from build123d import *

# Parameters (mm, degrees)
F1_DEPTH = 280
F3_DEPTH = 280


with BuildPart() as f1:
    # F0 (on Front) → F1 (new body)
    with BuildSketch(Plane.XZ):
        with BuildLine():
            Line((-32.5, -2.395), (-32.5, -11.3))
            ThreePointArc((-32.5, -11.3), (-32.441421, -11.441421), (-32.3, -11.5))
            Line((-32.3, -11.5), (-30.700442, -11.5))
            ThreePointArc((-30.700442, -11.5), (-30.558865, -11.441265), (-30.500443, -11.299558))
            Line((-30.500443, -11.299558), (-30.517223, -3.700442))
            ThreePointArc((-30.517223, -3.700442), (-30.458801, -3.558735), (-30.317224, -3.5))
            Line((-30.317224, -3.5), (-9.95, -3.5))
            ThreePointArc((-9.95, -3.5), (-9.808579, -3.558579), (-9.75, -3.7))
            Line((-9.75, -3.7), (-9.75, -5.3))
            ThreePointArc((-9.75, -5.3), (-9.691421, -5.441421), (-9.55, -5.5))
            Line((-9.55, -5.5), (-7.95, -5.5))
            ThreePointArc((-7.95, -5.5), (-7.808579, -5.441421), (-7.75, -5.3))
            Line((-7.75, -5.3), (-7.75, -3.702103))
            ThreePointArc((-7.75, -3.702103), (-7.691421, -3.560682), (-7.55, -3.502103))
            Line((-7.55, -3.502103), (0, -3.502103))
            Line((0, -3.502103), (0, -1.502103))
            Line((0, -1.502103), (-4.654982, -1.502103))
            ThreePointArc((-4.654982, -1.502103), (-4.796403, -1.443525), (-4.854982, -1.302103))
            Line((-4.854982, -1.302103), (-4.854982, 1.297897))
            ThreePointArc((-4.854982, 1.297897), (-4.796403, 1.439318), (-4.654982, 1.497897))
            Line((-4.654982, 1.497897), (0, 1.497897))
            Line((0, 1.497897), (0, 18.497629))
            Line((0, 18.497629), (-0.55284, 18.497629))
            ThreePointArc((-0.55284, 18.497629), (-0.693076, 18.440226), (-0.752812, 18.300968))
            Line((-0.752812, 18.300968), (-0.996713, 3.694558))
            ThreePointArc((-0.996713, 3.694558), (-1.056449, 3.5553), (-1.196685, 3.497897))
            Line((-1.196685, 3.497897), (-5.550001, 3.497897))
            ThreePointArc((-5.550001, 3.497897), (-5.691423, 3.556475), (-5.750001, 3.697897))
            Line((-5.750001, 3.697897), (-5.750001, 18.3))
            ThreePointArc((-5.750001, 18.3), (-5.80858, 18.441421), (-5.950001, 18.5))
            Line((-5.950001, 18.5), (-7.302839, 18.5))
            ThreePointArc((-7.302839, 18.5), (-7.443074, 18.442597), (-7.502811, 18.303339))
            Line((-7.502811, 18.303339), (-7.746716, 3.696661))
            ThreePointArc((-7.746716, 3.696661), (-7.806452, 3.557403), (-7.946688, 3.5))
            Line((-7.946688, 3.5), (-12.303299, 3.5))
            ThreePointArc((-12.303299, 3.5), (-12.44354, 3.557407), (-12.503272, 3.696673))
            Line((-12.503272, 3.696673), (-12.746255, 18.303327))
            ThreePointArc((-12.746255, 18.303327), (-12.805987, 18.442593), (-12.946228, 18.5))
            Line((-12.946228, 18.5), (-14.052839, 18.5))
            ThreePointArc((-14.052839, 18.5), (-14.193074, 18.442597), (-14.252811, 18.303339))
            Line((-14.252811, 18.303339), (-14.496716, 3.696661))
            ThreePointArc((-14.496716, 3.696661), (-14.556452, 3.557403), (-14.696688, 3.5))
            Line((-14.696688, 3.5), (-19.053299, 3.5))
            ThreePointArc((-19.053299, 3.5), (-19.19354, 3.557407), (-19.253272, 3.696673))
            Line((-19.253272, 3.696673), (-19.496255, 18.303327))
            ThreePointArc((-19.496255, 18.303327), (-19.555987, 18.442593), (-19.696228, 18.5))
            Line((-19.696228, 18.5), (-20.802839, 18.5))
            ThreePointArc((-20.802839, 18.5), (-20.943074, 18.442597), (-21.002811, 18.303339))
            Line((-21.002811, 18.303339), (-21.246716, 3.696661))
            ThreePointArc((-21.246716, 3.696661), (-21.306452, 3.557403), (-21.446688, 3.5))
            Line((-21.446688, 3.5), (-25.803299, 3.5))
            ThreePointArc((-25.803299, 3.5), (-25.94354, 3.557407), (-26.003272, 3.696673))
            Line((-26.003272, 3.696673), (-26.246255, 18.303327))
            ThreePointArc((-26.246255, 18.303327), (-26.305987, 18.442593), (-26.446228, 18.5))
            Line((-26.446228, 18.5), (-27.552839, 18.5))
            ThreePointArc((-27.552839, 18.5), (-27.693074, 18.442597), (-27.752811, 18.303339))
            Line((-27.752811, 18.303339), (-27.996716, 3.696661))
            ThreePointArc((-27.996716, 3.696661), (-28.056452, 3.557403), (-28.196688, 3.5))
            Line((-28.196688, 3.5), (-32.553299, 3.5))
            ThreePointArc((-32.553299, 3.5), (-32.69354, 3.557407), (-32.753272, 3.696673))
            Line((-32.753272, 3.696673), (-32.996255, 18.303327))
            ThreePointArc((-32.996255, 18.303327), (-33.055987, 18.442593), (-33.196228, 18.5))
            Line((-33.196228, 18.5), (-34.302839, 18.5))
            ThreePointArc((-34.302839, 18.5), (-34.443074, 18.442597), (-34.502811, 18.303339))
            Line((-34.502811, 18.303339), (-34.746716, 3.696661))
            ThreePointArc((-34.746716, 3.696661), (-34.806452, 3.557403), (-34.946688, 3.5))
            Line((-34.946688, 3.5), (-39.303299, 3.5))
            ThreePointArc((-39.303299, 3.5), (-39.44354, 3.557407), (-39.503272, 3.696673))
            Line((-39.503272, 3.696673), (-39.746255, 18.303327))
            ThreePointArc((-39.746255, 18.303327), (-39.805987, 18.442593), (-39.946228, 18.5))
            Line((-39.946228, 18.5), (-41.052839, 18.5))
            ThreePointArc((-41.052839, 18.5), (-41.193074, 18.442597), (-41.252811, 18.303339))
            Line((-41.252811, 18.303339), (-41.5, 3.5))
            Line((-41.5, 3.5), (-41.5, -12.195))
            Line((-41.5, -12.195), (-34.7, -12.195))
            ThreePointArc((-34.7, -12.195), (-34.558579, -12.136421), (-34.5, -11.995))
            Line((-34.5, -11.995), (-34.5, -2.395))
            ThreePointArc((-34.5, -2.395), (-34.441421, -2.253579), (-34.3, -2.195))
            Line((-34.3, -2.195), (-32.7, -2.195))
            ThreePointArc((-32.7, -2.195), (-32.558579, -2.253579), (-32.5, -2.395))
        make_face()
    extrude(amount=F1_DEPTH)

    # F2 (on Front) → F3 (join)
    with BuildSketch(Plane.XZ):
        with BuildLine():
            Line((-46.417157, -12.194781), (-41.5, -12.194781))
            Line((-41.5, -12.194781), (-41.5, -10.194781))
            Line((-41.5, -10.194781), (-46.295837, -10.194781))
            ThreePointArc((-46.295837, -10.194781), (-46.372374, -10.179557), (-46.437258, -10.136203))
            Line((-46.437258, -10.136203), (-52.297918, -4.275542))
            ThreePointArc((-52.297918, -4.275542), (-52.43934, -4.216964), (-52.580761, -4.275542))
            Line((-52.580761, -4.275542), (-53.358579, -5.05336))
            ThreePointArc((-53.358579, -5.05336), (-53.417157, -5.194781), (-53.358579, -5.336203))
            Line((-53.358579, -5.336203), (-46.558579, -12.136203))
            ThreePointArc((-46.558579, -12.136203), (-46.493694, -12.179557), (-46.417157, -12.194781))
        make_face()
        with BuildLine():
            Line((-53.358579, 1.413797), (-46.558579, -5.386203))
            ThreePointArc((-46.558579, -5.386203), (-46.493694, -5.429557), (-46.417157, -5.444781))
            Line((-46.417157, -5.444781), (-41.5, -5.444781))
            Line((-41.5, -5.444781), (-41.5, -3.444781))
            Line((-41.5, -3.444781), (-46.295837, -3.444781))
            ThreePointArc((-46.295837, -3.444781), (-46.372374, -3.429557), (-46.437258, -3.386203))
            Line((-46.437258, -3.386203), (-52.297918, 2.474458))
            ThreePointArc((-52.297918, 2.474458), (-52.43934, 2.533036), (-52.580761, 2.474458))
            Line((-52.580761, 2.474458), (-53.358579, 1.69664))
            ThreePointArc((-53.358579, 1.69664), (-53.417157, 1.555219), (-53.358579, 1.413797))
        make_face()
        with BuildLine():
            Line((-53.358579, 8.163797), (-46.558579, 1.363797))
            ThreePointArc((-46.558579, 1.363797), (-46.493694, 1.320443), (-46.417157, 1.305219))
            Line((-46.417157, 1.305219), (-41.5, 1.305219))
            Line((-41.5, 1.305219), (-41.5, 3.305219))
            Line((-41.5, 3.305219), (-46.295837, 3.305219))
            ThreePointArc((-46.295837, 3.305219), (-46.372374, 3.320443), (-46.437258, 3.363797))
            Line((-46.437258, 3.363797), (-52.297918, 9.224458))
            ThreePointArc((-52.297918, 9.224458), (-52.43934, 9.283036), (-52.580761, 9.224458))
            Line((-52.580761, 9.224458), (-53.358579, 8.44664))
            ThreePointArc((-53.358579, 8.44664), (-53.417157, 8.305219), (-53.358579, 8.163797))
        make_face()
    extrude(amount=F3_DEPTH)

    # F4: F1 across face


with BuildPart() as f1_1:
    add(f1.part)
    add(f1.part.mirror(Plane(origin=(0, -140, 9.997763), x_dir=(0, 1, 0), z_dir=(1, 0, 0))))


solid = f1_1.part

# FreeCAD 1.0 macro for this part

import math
import FreeCAD as App
import Part
import Sketcher
Q = App.Units.Quantity

doc = App.newDocument("Part")
body = doc.addObject("PartDesign::Body", "Body")

sketch1 = body.newObject("Sketcher::SketchObject", "Sketch")
sketch1.AttachmentSupport = (doc.getObject("XZ_Plane"), [""])
sketch1.MapMode = "FlatFace"
sketch1.addGeometry([
    Part.LineSegment(App.Vector(-32.5, -2.395, 0), App.Vector(-32.5, -11.3, 0)),
    Part.ArcOfCircle(Part.Circle(App.Vector(-32.299999, -11.299999, 0), App.Vector(0, 0, 1), 0.200001), math.radians(-179.999652), math.radians(-90.000348)),
    Part.LineSegment(App.Vector(-32.3, -11.5, 0), App.Vector(-30.700442, -11.5, 0)),
    Part.ArcOfCircle(Part.Circle(App.Vector(-30.700443, -11.3, 0), App.Vector(0, 0, 1), 0.2), math.radians(-89.99984), math.radians(0.12661)),
    Part.LineSegment(App.Vector(-30.500443, -11.299558, 0), App.Vector(-30.517223, -3.700442, 0)),
    Part.ArcOfCircle(Part.Circle(App.Vector(-30.317223, -3.7, 0), App.Vector(0, 0, 1), 0.2), math.radians(90.00016), math.radians(180.12661)),
    Part.LineSegment(App.Vector(-30.317224, -3.5, 0), App.Vector(-9.95, -3.5, 0)),
    Part.ArcOfCircle(Part.Circle(App.Vector(-9.950001, -3.700001, 0), App.Vector(0, 0, 1), 0.200001), math.radians(0.000348), math.radians(89.999652)),
    Part.LineSegment(App.Vector(-9.75, -3.7, 0), App.Vector(-9.75, -5.3, 0)),
    Part.ArcOfCircle(Part.Circle(App.Vector(-9.549999, -5.299999, 0), App.Vector(0, 0, 1), 0.200001), math.radians(-179.999652), math.radians(-90.000348)),
    Part.LineSegment(App.Vector(-9.55, -5.5, 0), App.Vector(-7.95, -5.5, 0)),
    Part.ArcOfCircle(Part.Circle(App.Vector(-7.950001, -5.299999, 0), App.Vector(0, 0, 1), 0.200001), math.radians(-89.999652), math.radians(-0.000348)),
    Part.LineSegment(App.Vector(-7.75, -5.3, 0), App.Vector(-7.75, -3.702103, 0)),
    Part.ArcOfCircle(Part.Circle(App.Vector(-7.549999, -3.702104, 0), App.Vector(0, 0, 1), 0.200001), math.radians(90.000348), math.radians(179.999652)),
    Part.LineSegment(App.Vector(-7.55, -3.502103, 0), App.Vector(0, -3.502103, 0)),
    Part.LineSegment(App.Vector(0, -3.502103, 0), App.Vector(0, -1.502103, 0)),
    Part.LineSegment(App.Vector(0, -1.502103, 0), App.Vector(-4.654982, -1.502103, 0)),
    Part.ArcOfCircle(Part.Circle(App.Vector(-4.654982, -1.302103, 0), App.Vector(0, 0, 1), 0.2), math.radians(179.999859), math.radians(270.000141)),
    Part.LineSegment(App.Vector(-4.854982, -1.302103, 0), App.Vector(-4.854982, 1.297897, 0)),
    Part.ArcOfCircle(Part.Circle(App.Vector(-4.654981, 1.297896, 0), App.Vector(0, 0, 1), 0.200001), math.radians(90.000348), math.radians(179.999652)),
    Part.LineSegment(App.Vector(-4.654982, 1.497897, 0), App.Vector(0, 1.497897, 0)),
    Part.LineSegment(App.Vector(0, 1.497897, 0), App.Vector(0, 18.497629, 0)),
    Part.LineSegment(App.Vector(0, 18.497629, 0), App.Vector(-0.55284, 18.497629, 0)),
    Part.ArcOfCircle(Part.Circle(App.Vector(-0.55284, 18.297629, 0), App.Vector(0, 0, 1), 0.2), math.radians(89.999904), math.radians(179.043534)),
    Part.LineSegment(App.Vector(-0.752812, 18.300968, 0), App.Vector(-0.996713, 3.694558, 0)),
    Part.ArcOfCircle(Part.Circle(App.Vector(-1.196685, 3.697897, 0), App.Vector(0, 0, 1), 0.2), math.radians(-90.000096), math.radians(-0.956466)),
    Part.LineSegment(App.Vector(-1.196685, 3.497897, 0), App.Vector(-5.550001, 3.497897, 0)),
    Part.ArcOfCircle(Part.Circle(App.Vector(-5.550003, 3.697895, 0), App.Vector(0, 0, 1), 0.199998), math.radians(179.99937), math.radians(270.00063)),
    Part.LineSegment(App.Vector(-5.750001, 3.697897, 0), App.Vector(-5.750001, 18.3, 0)),
    Part.ArcOfCircle(Part.Circle(App.Vector(-5.950002, 18.299999, 0), App.Vector(0, 0, 1), 0.200001), math.radians(0.000348), math.radians(89.999652)),
    Part.LineSegment(App.Vector(-5.950001, 18.5, 0), App.Vector(-7.302839, 18.5, 0)),
    Part.ArcOfCircle(Part.Circle(App.Vector(-7.302838, 18.299999, 0), App.Vector(0, 0, 1), 0.200001), math.radians(90.000395), math.radians(179.043044)),
    Part.LineSegment(App.Vector(-7.502811, 18.303339, 0), App.Vector(-7.746716, 3.696661, 0)),
    Part.ArcOfCircle(Part.Circle(App.Vector(-7.946688, 3.7, 0), App.Vector(0, 0, 1), 0.2), math.radians(-90.000096), math.radians(-0.956466)),
    Part.LineSegment(App.Vector(-7.946688, 3.5, 0), App.Vector(-12.303299, 3.5, 0)),
    Part.ArcOfCircle(Part.Circle(App.Vector(-12.3033, 3.699999, 0), App.Vector(0, 0, 1), 0.199999), math.radians(-179.047038), math.radians(-89.99961)),
    Part.LineSegment(App.Vector(-12.503272, 3.696673, 0), App.Vector(-12.746255, 18.303327, 0)),
    Part.ArcOfCircle(Part.Circle(App.Vector(-12.946227, 18.300001, 0), App.Vector(0, 0, 1), 0.199999), math.radians(0.952962), math.radians(90.00039)),
    Part.LineSegment(App.Vector(-12.946228, 18.5, 0), App.Vector(-14.052839, 18.5, 0)),
    Part.ArcOfCircle(Part.Circle(App.Vector(-14.052838, 18.299999, 0), App.Vector(0, 0, 1), 0.200001), math.radians(90.000395), math.radians(179.043044)),
    Part.LineSegment(App.Vector(-14.252811, 18.303339, 0), App.Vector(-14.496716, 3.696661, 0)),
    Part.ArcOfCircle(Part.Circle(App.Vector(-14.696688, 3.7, 0), App.Vector(0, 0, 1), 0.2), math.radians(-90.000096), math.radians(-0.956466)),
    Part.LineSegment(App.Vector(-14.696688, 3.5, 0), App.Vector(-19.053299, 3.5, 0)),
    Part.ArcOfCircle(Part.Circle(App.Vector(-19.0533, 3.699999, 0), App.Vector(0, 0, 1), 0.199999), math.radians(-179.047038), math.radians(-89.99961)),
    Part.LineSegment(App.Vector(-19.253272, 3.696673, 0), App.Vector(-19.496255, 18.303327, 0)),
    Part.ArcOfCircle(Part.Circle(App.Vector(-19.696227, 18.300001, 0), App.Vector(0, 0, 1), 0.199999), math.radians(0.952962), math.radians(90.00039)),
    Part.LineSegment(App.Vector(-19.696228, 18.5, 0), App.Vector(-20.802839, 18.5, 0)),
    Part.ArcOfCircle(Part.Circle(App.Vector(-20.802838, 18.299999, 0), App.Vector(0, 0, 1), 0.200001), math.radians(90.000395), math.radians(179.043044)),
    Part.LineSegment(App.Vector(-21.002811, 18.303339, 0), App.Vector(-21.246716, 3.696661, 0)),
    Part.ArcOfCircle(Part.Circle(App.Vector(-21.446688, 3.7, 0), App.Vector(0, 0, 1), 0.2), math.radians(-90.000096), math.radians(-0.956466)),
    Part.LineSegment(App.Vector(-21.446688, 3.5, 0), App.Vector(-25.803299, 3.5, 0)),
    Part.ArcOfCircle(Part.Circle(App.Vector(-25.8033, 3.699999, 0), App.Vector(0, 0, 1), 0.199999), math.radians(-179.047038), math.radians(-89.99961)),
    Part.LineSegment(App.Vector(-26.003272, 3.696673, 0), App.Vector(-26.246255, 18.303327, 0)),
    Part.ArcOfCircle(Part.Circle(App.Vector(-26.446227, 18.300001, 0), App.Vector(0, 0, 1), 0.199999), math.radians(0.952962), math.radians(90.00039)),
    Part.LineSegment(App.Vector(-26.446228, 18.5, 0), App.Vector(-27.552839, 18.5, 0)),
    Part.ArcOfCircle(Part.Circle(App.Vector(-27.552838, 18.299999, 0), App.Vector(0, 0, 1), 0.200001), math.radians(90.000395), math.radians(179.043044)),
    Part.LineSegment(App.Vector(-27.752811, 18.303339, 0), App.Vector(-27.996716, 3.696661, 0)),
    Part.ArcOfCircle(Part.Circle(App.Vector(-28.196688, 3.7, 0), App.Vector(0, 0, 1), 0.2), math.radians(-90.000096), math.radians(-0.956466)),
    Part.LineSegment(App.Vector(-28.196688, 3.5, 0), App.Vector(-32.553299, 3.5, 0)),
    Part.ArcOfCircle(Part.Circle(App.Vector(-32.5533, 3.699999, 0), App.Vector(0, 0, 1), 0.199999), math.radians(-179.047038), math.radians(-89.99961)),
    Part.LineSegment(App.Vector(-32.753272, 3.696673, 0), App.Vector(-32.996255, 18.303327, 0)),
    Part.ArcOfCircle(Part.Circle(App.Vector(-33.196227, 18.300001, 0), App.Vector(0, 0, 1), 0.199999), math.radians(0.952962), math.radians(90.00039)),
    Part.LineSegment(App.Vector(-33.196228, 18.5, 0), App.Vector(-34.302839, 18.5, 0)),
    Part.ArcOfCircle(Part.Circle(App.Vector(-34.302838, 18.299999, 0), App.Vector(0, 0, 1), 0.200001), math.radians(90.000395), math.radians(179.043044)),
    Part.LineSegment(App.Vector(-34.502811, 18.303339, 0), App.Vector(-34.746716, 3.696661, 0)),
    Part.ArcOfCircle(Part.Circle(App.Vector(-34.946688, 3.7, 0), App.Vector(0, 0, 1), 0.2), math.radians(-90.000096), math.radians(-0.956466)),
    Part.LineSegment(App.Vector(-34.946688, 3.5, 0), App.Vector(-39.303299, 3.5, 0)),
    Part.ArcOfCircle(Part.Circle(App.Vector(-39.3033, 3.699999, 0), App.Vector(0, 0, 1), 0.199999), math.radians(-179.047038), math.radians(-89.99961)),
    Part.LineSegment(App.Vector(-39.503272, 3.696673, 0), App.Vector(-39.746255, 18.303327, 0)),
    Part.ArcOfCircle(Part.Circle(App.Vector(-39.946227, 18.300001, 0), App.Vector(0, 0, 1), 0.199999), math.radians(0.952962), math.radians(90.00039)),
    Part.LineSegment(App.Vector(-39.946228, 18.5, 0), App.Vector(-41.052839, 18.5, 0)),
    Part.ArcOfCircle(Part.Circle(App.Vector(-41.052838, 18.299999, 0), App.Vector(0, 0, 1), 0.200001), math.radians(90.000395), math.radians(179.043044)),
    Part.LineSegment(App.Vector(-41.252811, 18.303339, 0), App.Vector(-41.5, 3.5, 0)),
    Part.LineSegment(App.Vector(-41.5, 3.5, 0), App.Vector(-41.5, -12.195, 0)),
    Part.LineSegment(App.Vector(-41.5, -12.195, 0), App.Vector(-34.7, -12.195, 0)),
    Part.ArcOfCircle(Part.Circle(App.Vector(-34.700001, -11.994999, 0), App.Vector(0, 0, 1), 0.200001), math.radians(-89.999652), math.radians(-0.000348)),
    Part.LineSegment(App.Vector(-34.5, -11.995, 0), App.Vector(-34.5, -2.395, 0)),
    Part.ArcOfCircle(Part.Circle(App.Vector(-34.299999, -2.395001, 0), App.Vector(0, 0, 1), 0.200001), math.radians(90.000348), math.radians(179.999652)),
    Part.LineSegment(App.Vector(-34.3, -2.195, 0), App.Vector(-32.7, -2.195, 0)),
    Part.ArcOfCircle(Part.Circle(App.Vector(-32.700001, -2.395001, 0), App.Vector(0, 0, 1), 0.200001), math.radians(0.000348), math.radians(89.999652)),
], False)
sketch1.addConstraint([
    Sketcher.Constraint("Coincident", 0, 2, 1, 1),
    Sketcher.Constraint("Coincident", 1, 2, 2, 1),
    Sketcher.Constraint("Coincident", 2, 2, 3, 1),
    Sketcher.Constraint("Coincident", 3, 2, 4, 1),
    Sketcher.Constraint("Coincident", 4, 2, 5, 2),
    Sketcher.Constraint("Coincident", 5, 1, 6, 1),
    Sketcher.Constraint("Coincident", 6, 2, 7, 2),
    Sketcher.Constraint("Coincident", 7, 1, 8, 1),
    Sketcher.Constraint("Coincident", 8, 2, 9, 1),
    Sketcher.Constraint("Coincident", 9, 2, 10, 1),
    Sketcher.Constraint("Coincident", 10, 2, 11, 1),
    Sketcher.Constraint("Coincident", 11, 2, 12, 1),
    Sketcher.Constraint("Coincident", 12, 2, 13, 2),
    Sketcher.Constraint("Coincident", 13, 1, 14, 1),
    Sketcher.Constraint("Coincident", 14, 2, 15, 1),
    Sketcher.Constraint("Coincident", 15, 2, 16, 1),
    Sketcher.Constraint("Coincident", 16, 2, 17, 2),
    Sketcher.Constraint("Coincident", 17, 1, 18, 1),
    Sketcher.Constraint("Coincident", 18, 2, 19, 2),
    Sketcher.Constraint("Coincident", 19, 1, 20, 1),
    Sketcher.Constraint("Coincident", 20, 2, 21, 1),
    Sketcher.Constraint("Coincident", 21, 2, 22, 1),
    Sketcher.Constraint("Coincident", 22, 2, 23, 1),
    Sketcher.Constraint("Coincident", 23, 2, 24, 1),
    Sketcher.Constraint("Coincident", 24, 2, 25, 2),
    Sketcher.Constraint("Coincident", 25, 1, 26, 1),
    Sketcher.Constraint("Coincident", 26, 2, 27, 2),
    Sketcher.Constraint("Coincident", 27, 1, 28, 1),
    Sketcher.Constraint("Coincident", 28, 2, 29, 1),
    Sketcher.Constraint("Coincident", 29, 2, 30, 1),
    Sketcher.Constraint("Coincident", 30, 2, 31, 1),
    Sketcher.Constraint("Coincident", 31, 2, 32, 1),
    Sketcher.Constraint("Coincident", 32, 2, 33, 2),
    Sketcher.Constraint("Coincident", 33, 1, 34, 1),
    Sketcher.Constraint("Coincident", 34, 2, 35, 2),
    Sketcher.Constraint("Coincident", 35, 1, 36, 1),
    Sketcher.Constraint("Coincident", 36, 2, 37, 1),
    Sketcher.Constraint("Coincident", 37, 2, 38, 1),
    Sketcher.Constraint("Coincident", 38, 2, 39, 1),
    Sketcher.Constraint("Coincident", 39, 2, 40, 1),
    Sketcher.Constraint("Coincident", 40, 2, 41, 2),
    Sketcher.Constraint("Coincident", 41, 1, 42, 1),
    Sketcher.Constraint("Coincident", 42, 2, 43, 2),
    Sketcher.Constraint("Coincident", 43, 1, 44, 1),
    Sketcher.Constraint("Coincident", 44, 2, 45, 1),
    Sketcher.Constraint("Coincident", 45, 2, 46, 1),
    Sketcher.Constraint("Coincident", 46, 2, 47, 1),
    Sketcher.Constraint("Coincident", 47, 2, 48, 1),
    Sketcher.Constraint("Coincident", 48, 2, 49, 2),
    Sketcher.Constraint("Coincident", 49, 1, 50, 1),
    Sketcher.Constraint("Coincident", 50, 2, 51, 2),
    Sketcher.Constraint("Coincident", 51, 1, 52, 1),
    Sketcher.Constraint("Coincident", 52, 2, 53, 1),
    Sketcher.Constraint("Coincident", 53, 2, 54, 1),
    Sketcher.Constraint("Coincident", 54, 2, 55, 1),
    Sketcher.Constraint("Coincident", 55, 2, 56, 1),
    Sketcher.Constraint("Coincident", 56, 2, 57, 2),
    Sketcher.Constraint("Coincident", 57, 1, 58, 1),
    Sketcher.Constraint("Coincident", 58, 2, 59, 2),
    Sketcher.Constraint("Coincident", 59, 1, 60, 1),
    Sketcher.Constraint("Coincident", 60, 2, 61, 1),
    Sketcher.Constraint("Coincident", 61, 2, 62, 1),
    Sketcher.Constraint("Coincident", 62, 2, 63, 1),
    Sketcher.Constraint("Coincident", 63, 2, 64, 1),
    Sketcher.Constraint("Coincident", 64, 2, 65, 2),
    Sketcher.Constraint("Coincident", 65, 1, 66, 1),
    Sketcher.Constraint("Coincident", 66, 2, 67, 2),
    Sketcher.Constraint("Coincident", 67, 1, 68, 1),
    Sketcher.Constraint("Coincident", 68, 2, 69, 1),
    Sketcher.Constraint("Coincident", 69, 2, 70, 1),
    Sketcher.Constraint("Coincident", 70, 2, 71, 1),
    Sketcher.Constraint("Coincident", 71, 2, 72, 1),
    Sketcher.Constraint("Coincident", 72, 2, 73, 1),
    Sketcher.Constraint("Coincident", 73, 2, 74, 1),
    Sketcher.Constraint("Coincident", 74, 2, 75, 1),
    Sketcher.Constraint("Coincident", 75, 2, 76, 1),
    Sketcher.Constraint("Coincident", 76, 2, 77, 2),
    Sketcher.Constraint("Coincident", 77, 1, 78, 1),
    Sketcher.Constraint("Coincident", 78, 2, 79, 2),
    Sketcher.Constraint("Coincident", 79, 1, 0, 1),
    Sketcher.Constraint("Vertical", 0),
    Sketcher.Constraint("Horizontal", 2),
    Sketcher.Constraint("Horizontal", 6),
    Sketcher.Constraint("Vertical", 8),
    Sketcher.Constraint("Horizontal", 10),
    Sketcher.Constraint("Vertical", 12),
    Sketcher.Constraint("Horizontal", 14),
    Sketcher.Constraint("Vertical", 15),
    Sketcher.Constraint("Horizontal", 16),
    Sketcher.Constraint("Vertical", 18),
    Sketcher.Constraint("Horizontal", 20),
    Sketcher.Constraint("Vertical", 21),
    Sketcher.Constraint("Horizontal", 22),
    Sketcher.Constraint("Horizontal", 26),
    Sketcher.Constraint("Vertical", 28),
    Sketcher.Constraint("Horizontal", 30),
    Sketcher.Constraint("Horizontal", 34),
    Sketcher.Constraint("Horizontal", 38),
    Sketcher.Constraint("Horizontal", 42),
    Sketcher.Constraint("Horizontal", 46),
    Sketcher.Constraint("Horizontal", 50),
    Sketcher.Constraint("Horizontal", 54),
    Sketcher.Constraint("Horizontal", 58),
    Sketcher.Constraint("Horizontal", 62),
    Sketcher.Constraint("Horizontal", 66),
    Sketcher.Constraint("Horizontal", 70),
    Sketcher.Constraint("Vertical", 73),
    Sketcher.Constraint("Horizontal", 74),
    Sketcher.Constraint("Vertical", 76),
    Sketcher.Constraint("Horizontal", 78),
    Sketcher.Constraint("PointOnObject", 14, 2, -2),
    Sketcher.Constraint("PointOnObject", 20, 2, -2),
    Sketcher.Constraint("Radius", 1, Q("0.200001 mm")),
    Sketcher.Constraint("Radius", 3, Q("0.2 mm")),
    Sketcher.Constraint("Radius", 5, Q("0.2 mm")),
    Sketcher.Constraint("Radius", 7, Q("0.200001 mm")),
    Sketcher.Constraint("Radius", 9, Q("0.200001 mm")),
    Sketcher.Constraint("Radius", 11, Q("0.200001 mm")),
    Sketcher.Constraint("Radius", 13, Q("0.200001 mm")),
    Sketcher.Constraint("Radius", 17, Q("0.2 mm")),
    Sketcher.Constraint("Radius", 19, Q("0.200001 mm")),
    Sketcher.Constraint("Radius", 23, Q("0.2 mm")),
    Sketcher.Constraint("Radius", 25, Q("0.2 mm")),
    Sketcher.Constraint("Radius", 29, Q("0.200001 mm")),
    Sketcher.Constraint("Radius", 31, Q("0.200001 mm")),
    Sketcher.Constraint("Radius", 33, Q("0.2 mm")),
    Sketcher.Constraint("Radius", 35, Q("0.199999 mm")),
    Sketcher.Constraint("Radius", 37, Q("0.199999 mm")),
    Sketcher.Constraint("Radius", 39, Q("0.200001 mm")),
    Sketcher.Constraint("Radius", 41, Q("0.2 mm")),
    Sketcher.Constraint("Radius", 43, Q("0.199999 mm")),
    Sketcher.Constraint("Radius", 45, Q("0.199999 mm")),
    Sketcher.Constraint("Radius", 47, Q("0.200001 mm")),
    Sketcher.Constraint("Radius", 49, Q("0.2 mm")),
    Sketcher.Constraint("Radius", 51, Q("0.199999 mm")),
    Sketcher.Constraint("Radius", 53, Q("0.199999 mm")),
    Sketcher.Constraint("Radius", 55, Q("0.200001 mm")),
    Sketcher.Constraint("Radius", 57, Q("0.2 mm")),
    Sketcher.Constraint("Radius", 59, Q("0.199999 mm")),
    Sketcher.Constraint("Radius", 61, Q("0.199999 mm")),
    Sketcher.Constraint("Radius", 63, Q("0.200001 mm")),
    Sketcher.Constraint("Radius", 65, Q("0.2 mm")),
    Sketcher.Constraint("Radius", 67, Q("0.199999 mm")),
    Sketcher.Constraint("Radius", 69, Q("0.199999 mm")),
    Sketcher.Constraint("Radius", 71, Q("0.200001 mm")),
    Sketcher.Constraint("Radius", 75, Q("0.200001 mm")),
    Sketcher.Constraint("Radius", 77, Q("0.200001 mm")),
    Sketcher.Constraint("Radius", 79, Q("0.200001 mm")),
    Sketcher.Constraint("DistanceY", 15, 1, 15, 2, Q("2 mm")),
    Sketcher.Constraint("DistanceX", 10, 1, 10, 2, Q("1.6 mm")),
    Sketcher.Constraint("DistanceX", 74, 1, 74, 2, Q("6.8 mm")),
    Sketcher.Constraint("DistanceX", 78, 1, 78, 2, Q("1.6 mm")),
    Sketcher.Constraint("DistanceY", 8, 2, 8, 1, Q("1.6 mm")),
    Sketcher.Constraint("DistanceY", 18, 1, 18, 2, Q("2.6 mm")),
    Sketcher.Constraint("DistanceY", 76, 1, 76, 2, Q("9.6 mm")),
    Sketcher.Constraint("DistanceX", 14, 1, 14, 2, Q("7.55 mm")),
    Sketcher.Constraint("DistanceX", 1, 3, -1, 1, Q("32.299999 mm")),
    Sketcher.Constraint("DistanceY", 1, 3, -1, 1, Q("11.299999 mm")),
    Sketcher.Constraint("DistanceY", 5, 3, -1, 1, Q("3.7 mm")),
    Sketcher.Constraint("DistanceY", 9, 3, -1, 1, Q("5.299999 mm")),
    Sketcher.Constraint("DistanceY", -1, 1, 29, 3, Q("18.299999 mm")),
    Sketcher.Constraint("DistanceY", -1, 1, 33, 3, Q("3.7 mm")),
    Sketcher.Constraint("DistanceY", -1, 1, 37, 3, Q("18.300001 mm")),
    Sketcher.Constraint("DistanceY", -1, 1, 41, 3, Q("3.7 mm")),
    Sketcher.Constraint("DistanceY", -1, 1, 45, 3, Q("18.300001 mm")),
    Sketcher.Constraint("DistanceY", -1, 1, 49, 3, Q("3.7 mm")),
    Sketcher.Constraint("DistanceY", -1, 1, 53, 3, Q("18.300001 mm")),
    Sketcher.Constraint("DistanceY", -1, 1, 57, 3, Q("3.7 mm")),
    Sketcher.Constraint("DistanceY", -1, 1, 61, 3, Q("18.300001 mm")),
    Sketcher.Constraint("DistanceY", -1, 1, 65, 3, Q("3.7 mm")),
    Sketcher.Constraint("DistanceY", -1, 1, 69, 3, Q("18.300001 mm")),
    Sketcher.Constraint("DistanceX", 75, 3, -1, 1, Q("34.700001 mm")),
    Sketcher.Constraint("DistanceY", 0, 2, -1, 1, Q("11.3 mm")),
    Sketcher.Constraint("DistanceX", 1, 2, -1, 1, Q("32.3 mm")),
    Sketcher.Constraint("DistanceY", 7, 1, -1, 1, Q("3.7 mm")),
    Sketcher.Constraint("DistanceY", 11, 2, -1, 1, Q("5.3 mm")),
    Sketcher.Constraint("DistanceY", -1, 1, 28, 2, Q("18.3 mm")),
    Sketcher.Constraint("DistanceX", 72, 2, -1, 1, Q("41.5 mm")),
    Sketcher.Constraint("DistanceY", -1, 1, 72, 2, Q("3.5 mm")),
    Sketcher.Constraint("DistanceX", 77, 1, -1, 1, Q("34.3 mm")),
    Sketcher.Constraint("DistanceY", 0, 2, 0, 1, Q("8.905 mm")),
    Sketcher.Constraint("DistanceY", 73, 2, 73, 1, Q("15.695 mm")),
    Sketcher.Constraint("DistanceX", 7, 3, -1, 1, Q("9.950001 mm")),
    Sketcher.Constraint("DistanceX", 11, 3, -1, 1, Q("7.950001 mm")),
    Sketcher.Constraint("DistanceX", 6, 2, -1, 1, Q("9.95 mm")),
    Sketcher.Constraint("DistanceX", 9, 2, -1, 1, Q("9.55 mm")),
    Sketcher.Constraint("DistanceX", 26, 2, -1, 1, Q("5.550001 mm")),
    Sketcher.Constraint("DistanceX", 27, 1, -1, 1, Q("5.750001 mm")),
    Sketcher.Constraint("DistanceX", 29, 2, -1, 1, Q("5.950001 mm")),
    Sketcher.Constraint("DistanceY", 77, 3, -1, 1, Q("2.395001 mm")),
    Sketcher.Constraint("DistanceY", 75, 2, -1, 1, Q("11.995 mm")),
    Sketcher.Constraint("Radius", 27, Q("0.199998 mm")),
    Sketcher.Constraint("DistanceX", 22, 2, 22, 1, Q("0.55284 mm")),
    Sketcher.Constraint("DistanceX", 34, 2, 34, 1, Q("4.356611 mm")),
    Sketcher.Constraint("DistanceX", 38, 2, 38, 1, Q("1.106611 mm")),
    Sketcher.Constraint("DistanceX", 42, 2, 42, 1, Q("4.356611 mm")),
    Sketcher.Constraint("DistanceX", 46, 2, 46, 1, Q("1.106611 mm")),
    Sketcher.Constraint("DistanceX", 50, 2, 50, 1, Q("4.356611 mm")),
    Sketcher.Constraint("DistanceX", 54, 2, 54, 1, Q("1.106611 mm")),
    Sketcher.Constraint("DistanceX", 58, 2, 58, 1, Q("4.356611 mm")),
    Sketcher.Constraint("DistanceX", 62, 2, 62, 1, Q("1.106611 mm")),
    Sketcher.Constraint("DistanceX", 66, 2, 66, 1, Q("4.356611 mm")),
    Sketcher.Constraint("DistanceX", 70, 2, 70, 1, Q("1.106611 mm")),
    Sketcher.Constraint("DistanceX", 35, 3, -1, 1, Q("12.3033 mm")),
    Sketcher.Constraint("DistanceX", 43, 3, -1, 1, Q("19.0533 mm")),
    Sketcher.Constraint("DistanceX", 51, 3, -1, 1, Q("25.8033 mm")),
    Sketcher.Constraint("DistanceX", 59, 3, -1, 1, Q("32.5533 mm")),
    Sketcher.Constraint("DistanceX", 67, 3, -1, 1, Q("39.3033 mm")),
    Sketcher.Constraint("DistanceX", 34, 2, -1, 1, Q("12.303299 mm")),
    Sketcher.Constraint("DistanceX", 42, 2, -1, 1, Q("19.053299 mm")),
    Sketcher.Constraint("DistanceX", 50, 2, -1, 1, Q("25.803299 mm")),
    Sketcher.Constraint("DistanceX", 58, 2, -1, 1, Q("32.553299 mm")),
    Sketcher.Constraint("DistanceX", 66, 2, -1, 1, Q("39.303299 mm")),
    Sketcher.Constraint("DistanceX", 2, 1, 2, 2, Q("1.599558 mm")),
    Sketcher.Constraint("DistanceX", 6, 1, 6, 2, Q("20.367224 mm")),
    Sketcher.Constraint("DistanceX", 16, 2, 16, 1, Q("4.654982 mm")),
    Sketcher.Constraint("DistanceX", 20, 1, 20, 2, Q("4.654982 mm")),
    Sketcher.Constraint("DistanceX", 26, 2, 26, 1, Q("4.353316 mm")),
    Sketcher.Constraint("DistanceX", 30, 2, 30, 1, Q("1.352838 mm")),
    Sketcher.Constraint("DistanceY", 12, 1, 12, 2, Q("1.597897 mm")),
    Sketcher.Constraint("DistanceY", 21, 1, 21, 2, Q("16.999732 mm")),
    Sketcher.Constraint("DistanceY", 28, 1, 28, 2, Q("14.602103 mm")),
    Sketcher.Constraint("DistanceX", 19, 3, -1, 1, Q("4.654981 mm")),
    Sketcher.Constraint("DistanceX", 23, 3, -1, 1, Q("0.55284 mm")),
    Sketcher.Constraint("DistanceY", -1, 1, 23, 3, Q("18.297629 mm")),
    Sketcher.Constraint("DistanceY", 3, 2, -1, 1, Q("11.299558 mm")),
    Sketcher.Constraint("DistanceY", 4, 2, -1, 1, Q("3.700442 mm")),
    Sketcher.Constraint("DistanceY", -1, 1, 23, 2, Q("18.300968 mm")),
    Sketcher.Constraint("DistanceX", 31, 2, -1, 1, Q("7.502811 mm")),
    Sketcher.Constraint("DistanceY", -1, 1, 31, 2, Q("18.303339 mm")),
    Sketcher.Constraint("DistanceY", -1, 1, 32, 2, Q("3.696661 mm")),
    Sketcher.Constraint("DistanceX", 38, 2, -1, 1, Q("14.052839 mm")),
    Sketcher.Constraint("DistanceX", 39, 2, -1, 1, Q("14.252811 mm")),
    Sketcher.Constraint("DistanceY", -1, 1, 39, 2, Q("18.303339 mm")),
    Sketcher.Constraint("DistanceY", -1, 1, 40, 2, Q("3.696661 mm")),
    Sketcher.Constraint("DistanceX", 45, 2, -1, 1, Q("19.696228 mm")),
    Sketcher.Constraint("DistanceX", 47, 2, -1, 1, Q("21.002811 mm")),
    Sketcher.Constraint("DistanceY", -1, 1, 47, 2, Q("18.303339 mm")),
    Sketcher.Constraint("DistanceY", -1, 1, 48, 2, Q("3.696661 mm")),
    Sketcher.Constraint("DistanceX", 53, 2, -1, 1, Q("26.446228 mm")),
    Sketcher.Constraint("DistanceX", 55, 2, -1, 1, Q("27.752811 mm")),
    Sketcher.Constraint("DistanceY", -1, 1, 55, 2, Q("18.303339 mm")),
    Sketcher.Constraint("DistanceY", -1, 1, 56, 2, Q("3.696661 mm")),
    Sketcher.Constraint("DistanceX", 62, 2, -1, 1, Q("34.302839 mm")),
    Sketcher.Constraint("DistanceX", 63, 2, -1, 1, Q("34.502811 mm")),
    Sketcher.Constraint("DistanceY", -1, 1, 63, 2, Q("18.303339 mm")),
    Sketcher.Constraint("DistanceY", -1, 1, 64, 2, Q("3.696661 mm")),
    Sketcher.Constraint("DistanceX", 70, 2, -1, 1, Q("41.052839 mm")),
    Sketcher.Constraint("DistanceX", 71, 2, -1, 1, Q("41.252811 mm")),
    Sketcher.Constraint("DistanceY", -1, 1, 71, 2, Q("18.303339 mm")),
    Sketcher.Constraint("Distance", 24, Q("14.608446 mm")),
    Sketcher.Constraint("Distance", 32, Q("14.608714 mm")),
    Sketcher.Constraint("Distance", 36, Q("14.608675 mm")),
    Sketcher.Constraint("Distance", 40, Q("14.608714 mm")),
    Sketcher.Constraint("Distance", 44, Q("14.608675 mm")),
    Sketcher.Constraint("Distance", 48, Q("14.608714 mm")),
    Sketcher.Constraint("Distance", 52, Q("14.608675 mm")),
    Sketcher.Constraint("Distance", 56, Q("14.608714 mm")),
    Sketcher.Constraint("Distance", 60, Q("14.608675 mm")),
    Sketcher.Constraint("Distance", 64, Q("14.608714 mm")),
    Sketcher.Constraint("Distance", 68, Q("14.608675 mm")),
    Sketcher.Constraint("DistanceX", 3, 3, -1, 1, Q("30.700443 mm")),
    Sketcher.Constraint("DistanceX", 5, 3, -1, 1, Q("30.317223 mm")),
    Sketcher.Constraint("DistanceY", 13, 3, -1, 1, Q("3.702104 mm")),
    Sketcher.Constraint("DistanceX", 25, 3, -1, 1, Q("1.196685 mm")),
    Sketcher.Constraint("DistanceY", -1, 1, 25, 3, Q("3.697897 mm")),
    Sketcher.Constraint("DistanceX", 37, 3, -1, 1, Q("12.946227 mm")),
    Sketcher.Constraint("DistanceX", 45, 3, -1, 1, Q("19.696227 mm")),
    Sketcher.Constraint("DistanceX", 53, 3, -1, 1, Q("26.446227 mm")),
    Sketcher.Constraint("DistanceX", 61, 3, -1, 1, Q("33.196227 mm")),
    Sketcher.Constraint("DistanceX", 69, 3, -1, 1, Q("39.946227 mm")),
    Sketcher.Constraint("DistanceY", 17, 1, -1, 1, Q("1.302103 mm")),
    Sketcher.Constraint("DistanceY", -1, 1, 35, 1, Q("3.696673 mm")),
    Sketcher.Constraint("DistanceY", -1, 1, 43, 1, Q("3.696673 mm")),
    Sketcher.Constraint("DistanceY", -1, 1, 51, 1, Q("3.696673 mm")),
    Sketcher.Constraint("DistanceY", -1, 1, 59, 1, Q("3.696673 mm")),
    Sketcher.Constraint("DistanceY", -1, 1, 67, 1, Q("3.696673 mm")),
])
pad1 = body.newObject("PartDesign::Pad", "Pad")
pad1.Profile = sketch1
pad1.Length = 280

sketch2 = body.newObject("Sketcher::SketchObject", "Sketch001")
sketch2.AttachmentSupport = (doc.getObject("XZ_Plane"), [""])
sketch2.MapMode = "FlatFace"
sketch2.addGeometry([
    Part.LineSegment(App.Vector(-46.42, -12.19, 0), App.Vector(-41.5, -12.19, 0)),
    Part.LineSegment(App.Vector(-41.5, -12.19, 0), App.Vector(-41.5, -10.19, 0)),
    Part.LineSegment(App.Vector(-41.5, -10.19, 0), App.Vector(-46.3, -10.19, 0)),
    Part.ArcOfCircle(Part.Circle(App.Vector(-46.3, -9.99, 0), App.Vector(0, 0, 1), 0.2), math.radians(-135), math.radians(-90)),
    Part.LineSegment(App.Vector(-46.44, -10.14, 0), App.Vector(-52.3, -4.28, 0)),
    Part.ArcOfCircle(Part.Circle(App.Vector(-52.44, -4.42, 0), App.Vector(0, 0, 1), 0.2), math.radians(45), math.radians(135)),
    Part.LineSegment(App.Vector(-52.58, -4.28, 0), App.Vector(-53.36, -5.05, 0)),
    Part.ArcOfCircle(Part.Circle(App.Vector(-53.22, -5.19, 0), App.Vector(0, 0, 1), 0.2), math.radians(135), math.radians(225)),
    Part.LineSegment(App.Vector(-53.36, -5.34, 0), App.Vector(-46.56, -12.14, 0)),
    Part.ArcOfCircle(Part.Circle(App.Vector(-46.42, -11.99, 0), App.Vector(0, 0, 1), 0.2), math.radians(-135), math.radians(-90)),
    Part.LineSegment(App.Vector(-53.36, 1.41, 0), App.Vector(-46.56, -5.39, 0)),
    Part.ArcOfCircle(Part.Circle(App.Vector(-46.42, -5.24, 0), App.Vector(0, 0, 1), 0.2), math.radians(-135), math.radians(-90)),
    Part.LineSegment(App.Vector(-46.42, -5.44, 0), App.Vector(-41.5, -5.44, 0)),
    Part.LineSegment(App.Vector(-41.5, -5.44, 0), App.Vector(-41.5, -3.44, 0)),
    Part.LineSegment(App.Vector(-41.5, -3.44, 0), App.Vector(-46.3, -3.44, 0)),
    Part.ArcOfCircle(Part.Circle(App.Vector(-46.3, -3.24, 0), App.Vector(0, 0, 1), 0.2), math.radians(-135), math.radians(-90)),
    Part.LineSegment(App.Vector(-46.44, -3.39, 0), App.Vector(-52.3, 2.47, 0)),
    Part.ArcOfCircle(Part.Circle(App.Vector(-52.44, 2.33, 0), App.Vector(0, 0, 1), 0.2), math.radians(45), math.radians(135)),
    Part.LineSegment(App.Vector(-52.58, 2.47, 0), App.Vector(-53.36, 1.7, 0)),
    Part.ArcOfCircle(Part.Circle(App.Vector(-53.22, 1.56, 0), App.Vector(0, 0, 1), 0.2), math.radians(135), math.radians(225)),
    Part.LineSegment(App.Vector(-53.36, 8.16, 0), App.Vector(-46.56, 1.36, 0)),
    Part.ArcOfCircle(Part.Circle(App.Vector(-46.42, 1.51, 0), App.Vector(0, 0, 1), 0.2), math.radians(-135), math.radians(-90)),
    Part.LineSegment(App.Vector(-46.42, 1.31, 0), App.Vector(-41.5, 1.31, 0)),
    Part.LineSegment(App.Vector(-41.5, 1.31, 0), App.Vector(-41.5, 3.31, 0)),
    Part.LineSegment(App.Vector(-41.5, 3.31, 0), App.Vector(-46.3, 3.31, 0)),
    Part.ArcOfCircle(Part.Circle(App.Vector(-46.3, 3.51, 0), App.Vector(0, 0, 1), 0.2), math.radians(-135), math.radians(-90)),
    Part.LineSegment(App.Vector(-46.44, 3.36, 0), App.Vector(-52.3, 9.22, 0)),
    Part.ArcOfCircle(Part.Circle(App.Vector(-52.44, 9.08, 0), App.Vector(0, 0, 1), 0.2), math.radians(45), math.radians(135)),
    Part.LineSegment(App.Vector(-52.58, 9.22, 0), App.Vector(-53.36, 8.45, 0)),
    Part.ArcOfCircle(Part.Circle(App.Vector(-53.22, 8.31, 0), App.Vector(0, 0, 1), 0.2), math.radians(135), math.radians(225)),
], False)
sketch2.addConstraint([
    Sketcher.Constraint("Coincident", 0, 2, 1, 1),
    Sketcher.Constraint("Coincident", 1, 2, 2, 1),
    Sketcher.Constraint("Coincident", 2, 2, 3, 2),
    Sketcher.Constraint("Coincident", 3, 1, 4, 1),
    Sketcher.Constraint("Coincident", 4, 2, 5, 1),
    Sketcher.Constraint("Coincident", 5, 2, 6, 1),
    Sketcher.Constraint("Coincident", 6, 2, 7, 1),
    Sketcher.Constraint("Coincident", 7, 2, 8, 1),
    Sketcher.Constraint("Coincident", 8, 2, 9, 1),
    Sketcher.Constraint("Tangent", 9, 2, 0, 1),
    Sketcher.Constraint("Coincident", 10, 2, 11, 1),
    Sketcher.Constraint("Tangent", 11, 2, 12, 1),
    Sketcher.Constraint("Coincident", 12, 2, 13, 1),
    Sketcher.Constraint("Coincident", 13, 2, 14, 1),
    Sketcher.Constraint("Coincident", 14, 2, 15, 2),
    Sketcher.Constraint("Coincident", 15, 1, 16, 1),
    Sketcher.Constraint("Coincident", 16, 2, 17, 1),
    Sketcher.Constraint("Coincident", 17, 2, 18, 1),
    Sketcher.Constraint("Coincident", 18, 2, 19, 1),
    Sketcher.Constraint("Coincident", 19, 2, 10, 1),
    Sketcher.Constraint("Coincident", 20, 2, 21, 1),
    Sketcher.Constraint("Tangent", 21, 2, 22, 1),
    Sketcher.Constraint("Coincident", 22, 2, 23, 1),
    Sketcher.Constraint("Coincident", 23, 2, 24, 1),
    Sketcher.Constraint("Coincident", 24, 2, 25, 2),
    Sketcher.Constraint("Coincident", 25, 1, 26, 1),
    Sketcher.Constraint("Coincident", 26, 2, 27, 1),
    Sketcher.Constraint("Coincident", 27, 2, 28, 1),
    Sketcher.Constraint("Coincident", 28, 2, 29, 1),
    Sketcher.Constraint("Coincident", 29, 2, 20, 1),
    Sketcher.Constraint("Horizontal", 0),
    Sketcher.Constraint("Vertical", 1),
    Sketcher.Constraint("Horizontal", 2),
    Sketcher.Constraint("Horizontal", 12),
    Sketcher.Constraint("Vertical", 13),
    Sketcher.Constraint("Horizontal", 14),
    Sketcher.Constraint("Horizontal", 22),
    Sketcher.Constraint("Vertical", 23),
    Sketcher.Constraint("Horizontal", 24),
    Sketcher.Constraint("Equal", 5, 7),
    Sketcher.Constraint("Equal", 7, 9),
    Sketcher.Constraint("Equal", 9, 11),
    Sketcher.Constraint("Equal", 3, 15),
    Sketcher.Constraint("Equal", 11, 17),
    Sketcher.Constraint("Equal", 17, 19),
    Sketcher.Constraint("Equal", 19, 21),
    Sketcher.Constraint("Equal", 15, 25),
    Sketcher.Constraint("Equal", 21, 27),
    Sketcher.Constraint("Equal", 27, 29),
    Sketcher.Constraint("Perpendicular", 4, 6),
    Sketcher.Constraint("Perpendicular", 6, 8),
    Sketcher.Constraint("Parallel", 8, 10),
    Sketcher.Constraint("Parallel", 10, 16),
    Sketcher.Constraint("Perpendicular", 16, 18),
    Sketcher.Constraint("Perpendicular", 18, 20),
    Sketcher.Constraint("Parallel", 20, 26),
    Sketcher.Constraint("Perpendicular", 26, 28),
    Sketcher.Constraint("Horizontal", 4, 2, 5, 2),
    Sketcher.Constraint("Horizontal", 16, 2, 17, 2),
    Sketcher.Constraint("Horizontal", 26, 2, 27, 2),
    Sketcher.Constraint("Vertical", 9, 3, 11, 3),
    Sketcher.Constraint("Vertical", 3, 3, 15, 3),
    Sketcher.Constraint("Vertical", 5, 3, 17, 3),
    Sketcher.Constraint("Vertical", 7, 3, 19, 3),
    Sketcher.Constraint("Vertical", 11, 3, 21, 3),
    Sketcher.Constraint("Vertical", 15, 3, 25, 3),
    Sketcher.Constraint("Vertical", 17, 3, 27, 3),
    Sketcher.Constraint("Vertical", 19, 3, 29, 3),
    Sketcher.Constraint("Vertical", 25, 3, 2, 2),
    Sketcher.Constraint("Vertical", 6, 2, 7, 2),
    Sketcher.Constraint("Vertical", 8, 2, 10, 2),
    Sketcher.Constraint("Vertical", 1, 2, 12, 2),
    Sketcher.Constraint("Vertical", 2, 2, 14, 2),
    Sketcher.Constraint("Vertical", 3, 1, 15, 1),
    Sketcher.Constraint("Vertical", 4, 2, 16, 2),
    Sketcher.Constraint("Vertical", 7, 2, 18, 2),
    Sketcher.Constraint("Vertical", 18, 2, 19, 2),
    Sketcher.Constraint("Vertical", 10, 2, 20, 2),
    Sketcher.Constraint("Vertical", 13, 2, 22, 2),
    Sketcher.Constraint("Vertical", 14, 2, 24, 2),
    Sketcher.Constraint("Vertical", 15, 1, 25, 1),
    Sketcher.Constraint("Vertical", 16, 2, 26, 2),
    Sketcher.Constraint("Vertical", 19, 2, 28, 2),
    Sketcher.Constraint("Vertical", 28, 2, 29, 2),
    Sketcher.Constraint("Radius", 3, Q("0.199999 mm")),
    Sketcher.Constraint("Radius", 5, Q("0.200002 mm")),
    Sketcher.Constraint("DistanceY", 1, 1, 1, 2, Q("2 mm")),
    Sketcher.Constraint("Angle", 4, Q("134.999995 deg")),
    Sketcher.Constraint("DistanceY", 8, 2, 3, 1, Q("2 mm")),
    Sketcher.Constraint("Distance", 6, Q("1.100001 mm")),
    Sketcher.Constraint("DistanceX", 0, 2, -1, 1, Q("41.5 mm")),
    Sketcher.Constraint("DistanceY", 3, 3, 7, 3, Q("4.800001 mm")),
    Sketcher.Constraint("DistanceY", 5, 3, 27, 3, Q("13.5 mm")),
    Sketcher.Constraint("DistanceY", 9, 3, 11, 3, Q("6.75 mm")),
    Sketcher.Constraint("DistanceX", 5, 3, 3, 3, Q("6.143502 mm")),
    Sketcher.Constraint("DistanceX", 3, 1, 9, 3, Q("0.020101 mm")),
    Sketcher.Constraint("DistanceX", 0, 1, 0, 2, Q("4.917157 mm")),
    Sketcher.Constraint("DistanceY", 7, 3, -1, 1, Q("5.194782 mm")),
    Sketcher.Constraint("DistanceX", 4, 2, -1, 1, Q("52.297918 mm")),
])
pad2 = body.newObject("PartDesign::Pad", "Pad001")
pad2.Profile = sketch2
pad2.Length = 280
body2 = doc.addObject("PartDesign::Body", "Body001")
doc.recompute()

body2.BaseFeature = body
doc.recompute()

mirroring = doc.addObject("Part::Mirroring", "Mirroring")
mirroring.Source = body
mirroring.Base = App.Vector(0, -140, 9.997763)
mirroring.Normal = App.Vector(1, 0, 0)
body3 = doc.addObject("PartDesign::Body", "Body002")
body3.BaseFeature = mirroring
boolean = body2.newObject("PartDesign::Boolean", "Boolean")
boolean.Type = "Fuse"
boolean.addObjects([body3])
doc.recompute()
mirroring.Visibility = False

doc.recompute()
